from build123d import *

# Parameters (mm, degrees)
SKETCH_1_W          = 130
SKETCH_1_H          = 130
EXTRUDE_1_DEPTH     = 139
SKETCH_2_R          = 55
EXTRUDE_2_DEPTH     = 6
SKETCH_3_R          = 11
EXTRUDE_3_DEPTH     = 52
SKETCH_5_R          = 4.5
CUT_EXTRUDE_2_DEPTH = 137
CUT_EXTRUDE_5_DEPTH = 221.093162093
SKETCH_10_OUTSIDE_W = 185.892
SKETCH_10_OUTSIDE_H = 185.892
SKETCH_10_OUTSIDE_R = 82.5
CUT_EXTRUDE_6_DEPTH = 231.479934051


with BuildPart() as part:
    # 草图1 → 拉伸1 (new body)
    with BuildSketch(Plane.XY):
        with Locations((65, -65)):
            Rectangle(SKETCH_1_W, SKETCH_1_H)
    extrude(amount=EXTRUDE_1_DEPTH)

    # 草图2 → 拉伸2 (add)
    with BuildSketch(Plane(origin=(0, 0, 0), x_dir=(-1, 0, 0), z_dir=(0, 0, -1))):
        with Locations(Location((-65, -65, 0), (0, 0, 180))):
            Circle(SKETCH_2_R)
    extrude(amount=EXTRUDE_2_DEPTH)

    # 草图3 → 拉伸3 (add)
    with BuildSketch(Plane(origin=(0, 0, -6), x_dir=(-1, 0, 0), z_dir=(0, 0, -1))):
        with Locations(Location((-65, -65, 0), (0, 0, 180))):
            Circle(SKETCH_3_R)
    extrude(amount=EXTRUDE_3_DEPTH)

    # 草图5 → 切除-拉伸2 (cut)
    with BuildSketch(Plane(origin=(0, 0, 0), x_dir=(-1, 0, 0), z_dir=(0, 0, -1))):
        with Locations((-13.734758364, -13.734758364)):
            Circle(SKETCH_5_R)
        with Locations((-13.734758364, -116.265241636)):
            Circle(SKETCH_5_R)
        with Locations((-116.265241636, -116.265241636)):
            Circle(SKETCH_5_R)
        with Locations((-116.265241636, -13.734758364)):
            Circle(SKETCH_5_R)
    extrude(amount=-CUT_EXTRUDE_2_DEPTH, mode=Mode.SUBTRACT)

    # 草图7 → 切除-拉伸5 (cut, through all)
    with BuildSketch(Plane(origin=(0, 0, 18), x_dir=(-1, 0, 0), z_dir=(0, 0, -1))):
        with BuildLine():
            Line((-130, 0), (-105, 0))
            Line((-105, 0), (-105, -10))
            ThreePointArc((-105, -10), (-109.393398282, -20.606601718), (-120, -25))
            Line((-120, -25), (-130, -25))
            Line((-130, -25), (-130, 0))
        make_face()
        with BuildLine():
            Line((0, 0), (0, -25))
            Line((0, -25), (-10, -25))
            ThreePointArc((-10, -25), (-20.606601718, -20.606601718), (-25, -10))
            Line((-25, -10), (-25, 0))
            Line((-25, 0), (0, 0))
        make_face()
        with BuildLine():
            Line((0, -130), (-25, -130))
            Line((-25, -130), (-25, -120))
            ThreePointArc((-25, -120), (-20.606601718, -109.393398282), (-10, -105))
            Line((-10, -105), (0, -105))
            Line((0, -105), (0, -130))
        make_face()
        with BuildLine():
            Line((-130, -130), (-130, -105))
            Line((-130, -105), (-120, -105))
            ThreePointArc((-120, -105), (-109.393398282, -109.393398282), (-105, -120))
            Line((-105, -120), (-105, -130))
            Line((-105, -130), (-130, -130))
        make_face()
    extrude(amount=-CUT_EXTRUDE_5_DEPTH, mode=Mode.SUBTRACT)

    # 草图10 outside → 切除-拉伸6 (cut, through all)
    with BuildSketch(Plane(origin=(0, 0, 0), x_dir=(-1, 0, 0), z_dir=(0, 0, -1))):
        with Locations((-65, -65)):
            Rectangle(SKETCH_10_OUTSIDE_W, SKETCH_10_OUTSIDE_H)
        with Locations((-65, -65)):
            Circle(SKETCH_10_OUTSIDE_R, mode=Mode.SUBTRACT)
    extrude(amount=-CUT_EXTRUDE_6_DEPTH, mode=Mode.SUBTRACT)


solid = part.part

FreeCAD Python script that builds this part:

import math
import FreeCAD as App
import Part
import Sketcher
from FreeCAD import Vector

doc = App.newDocument("Part")
body = doc.addObject("PartDesign::Body", "Body")

sketch1 = doc.addObject("Sketcher::SketchObject", "Sketch")
body.addObject(sketch1)
sketch1.AttachmentSupport = (doc.XY_Plane, [""])
sketch1.MapMode = "FlatFace"
sketch1.addGeometry(Part.LineSegment(Vector(0, 0, 0), Vector(0, -130, 0)), False)
sketch1.addGeometry(Part.LineSegment(Vector(0, -130, 0), Vector(130, -130, 0)), False)
sketch1.addGeometry(Part.LineSegment(Vector(130, -130, 0), Vector(130, 0, 0)), False)
sketch1.addGeometry(Part.LineSegment(Vector(130, 0, 0), Vector(0, 0, 0)), False)
sketch1.addConstraint(Sketcher.Constraint("Coincident", 0, 2, 1, 1))
sketch1.addConstraint(Sketcher.Constraint("Coincident", 1, 2, 2, 1))
sketch1.addConstraint(Sketcher.Constraint("Coincident", 2, 2, 3, 1))
sketch1.addConstraint(Sketcher.Constraint("Coincident", 3, 2, 0, 1))
sketch1.addConstraint(Sketcher.Constraint("Vertical", 0))
sketch1.addConstraint(Sketcher.Constraint("Horizontal", 1))
sketch1.addConstraint(Sketcher.Constraint("Vertical", 2))
sketch1.addConstraint(Sketcher.Constraint("Horizontal", 3))
sketch1.addConstraint(Sketcher.Constraint("Coincident", 3, 2, -1, 1))
sketch1.addConstraint(Sketcher.Constraint("Equal", 3, 0))
sketch1.addConstraint(Sketcher.Constraint("DistanceX", 1, 1, 1, 2, 130.0))
pad1 = doc.addObject("PartDesign::Pad", "Pad")
body.addObject(pad1)
pad1.Profile = sketch1
pad1.Length = 139

sketch2 = doc.addObject("Sketcher::SketchObject", "Sketch001")
body.addObject(sketch2)
sketch2.AttachmentSupport = (doc.XY_Plane, [""])
sketch2.MapMode = "FlatFace"
sketch2.addGeometry(Part.Circle(Vector(65, -65, 0), Vector(0, 0, 1), 55), False)
sketch2.addConstraint(Sketcher.Constraint("Diameter", 0, 110.0))
sketch2.addConstraint(Sketcher.Constraint("DistanceX", -1, 1, 0, 3, 65.0))
sketch2.addConstraint(Sketcher.Constraint("DistanceY", 0, 3, -1, 1, 65.0))
pad2 = doc.addObject("PartDesign::Pad", "Pad001")
body.addObject(pad2)
pad2.Profile = sketch2
pad2.Length = 6
pad2.Reversed = True

sketch3 = doc.addObject("Sketcher::SketchObject", "Sketch002")
body.addObject(sketch3)
sketch3.AttachmentSupport = (doc.XY_Plane, [""])
sketch3.MapMode = "FlatFace"
sketch3.AttachmentOffset = App.Placement(Vector(0, 0, -6), App.Rotation())
sketch3.addGeometry(Part.Circle(Vector(65, -65, 0), Vector(0, 0, 1), 11), False)
sketch3.addConstraint(Sketcher.Constraint("Diameter", 0, 22.0))
sketch3.addConstraint(Sketcher.Constraint("DistanceX", -1, 1, 0, 3, 65.0))
sketch3.addConstraint(Sketcher.Constraint("DistanceY", 0, 3, -1, 1, 65.0))
pad3 = doc.addObject("PartDesign::Pad", "Pad002")
body.addObject(pad3)
pad3.Profile = sketch3
pad3.Length = 52
pad3.Reversed = True

sketch4 = doc.addObject("Sketcher::SketchObject", "Sketch003")
body.addObject(sketch4)
sketch4.AttachmentSupport = (doc.XY_Plane, [""])
sketch4.MapMode = "FlatFace"
sketch4.addGeometry(Part.Circle(Vector(13.7, -13.7, 0), Vector(0, 0, 1), 4.5), False)
sketch4.addGeometry(Part.Circle(Vector(13.7, -116.3, 0), Vector(0, 0, 1), 4.5), False)
sketch4.addGeometry(Part.Circle(Vector(116.3, -116.3, 0), Vector(0, 0, 1), 4.5), False)
sketch4.addGeometry(Part.Circle(Vector(116.3, -13.7, 0), Vector(0, 0, 1), 4.5), False)
sketch4.addConstraint(Sketcher.Constraint("Equal", 0, 1))
sketch4.addConstraint(Sketcher.Constraint("Equal", 1, 2))
sketch4.addConstraint(Sketcher.Constraint("Equal", 2, 3))
sketch4.addConstraint(Sketcher.Constraint("Horizontal", 1, 3, 2, 3))
sketch4.addConstraint(Sketcher.Constraint("Horizontal", 0, 3, 3, 3))
sketch4.addConstraint(Sketcher.Constraint("Vertical", 0, 3, 1, 3))
sketch4.addConstraint(Sketcher.Constraint("Vertical", 2, 3, 3, 3))
sketch4.addConstraint(Sketcher.Constraint("Diameter", 0, 9.0))
sketch4.addConstraint(Sketcher.Constraint("DistanceX", -1, 1, 0, 3, 13.734758))
sketch4.addConstraint(Sketcher.Constraint("DistanceY", 0, 3, -1, 1, 13.734758))
sketch4.addConstraint(Sketcher.Constraint("DistanceY", 1, 3, -1, 1, 116.265242))
sketch4.addConstraint(Sketcher.Constraint("DistanceX", -1, 1, 2, 3, 116.265242))
pocket1 = doc.addObject("PartDesign::Pocket", "Pocket")
body.addObject(pocket1)
pocket1.Profile = sketch4
pocket1.Length = 137
pocket1.Reversed = True

sketch5 = doc.addObject("Sketcher::SketchObject", "Sketch004")
body.addObject(sketch5)
sketch5.AttachmentSupport = (doc.XY_Plane, [""])
sketch5.MapMode = "FlatFace"
sketch5.AttachmentOffset = App.Placement(Vector(0, 0, 18), App.Rotation())
sketch5.addGeometry(Part.LineSegment(Vector(105, 0, 0), Vector(130, 0, 0)), False)
sketch5.addGeometry(Part.LineSegment(Vector(130, 0, 0), Vector(130, -25, 0)), False)
sketch5.addGeometry(Part.LineSegment(Vector(130, -25, 0), Vector(120, -25, 0)), False)
sketch5.addGeometry(Part.ArcOfCircle(Part.Circle(Vector(120, -10, 0), Vector(0, 0, 1), 15), math.radians(180), math.radians(270)), False)
sketch5.addGeometry(Part.LineSegment(Vector(105, -10, 0), Vector(105, 0, 0)), False)
sketch5.addGeometry(Part.LineSegment(Vector(0, -25, 0), Vector(0, 0, 0)), False)
sketch5.addGeometry(Part.LineSegment(Vector(0, 0, 0), Vector(25, 0, 0)), False)
sketch5.addGeometry(Part.LineSegment(Vector(25, 0, 0), Vector(25, -10, 0)), False)
sketch5.addGeometry(Part.ArcOfCircle(Part.Circle(Vector(10, -10, 0), Vector(0, 0, 1), 15), math.radians(-90), math.radians(0)), False)
sketch5.addGeometry(Part.LineSegment(Vector(10, -25, 0), Vector(0, -25, 0)), False)
sketch5.addGeometry(Part.LineSegment(Vector(25, -130, 0), Vector(0, -130, 0)), False)
sketch5.addGeometry(Part.LineSegment(Vector(0, -130, 0), Vector(0, -105, 0)), False)
sketch5.addGeometry(Part.LineSegment(Vector(0, -105, 0), Vector(10, -105, 0)), False)
sketch5.addGeometry(Part.ArcOfCircle(Part.Circle(Vector(10, -120, 0), Vector(0, 0, 1), 15), math.radians(0), math.radians(90)), False)
sketch5.addGeometry(Part.LineSegment(Vector(25, -120, 0), Vector(25, -130, 0)), False)
sketch5.addGeometry(Part.LineSegment(Vector(130, -105, 0), Vector(130, -130, 0)), False)
sketch5.addGeometry(Part.LineSegment(Vector(130, -130, 0), Vector(105, -130, 0)), False)
sketch5.addGeometry(Part.LineSegment(Vector(105, -130, 0), Vector(105, -120, 0)), False)
sketch5.addGeometry(Part.ArcOfCircle(Part.Circle(Vector(120, -120, 0), Vector(0, 0, 1), 15), math.radians(90), math.radians(180)), False)
sketch5.addGeometry(Part.LineSegment(Vector(120, -105, 0), Vector(130, -105, 0)), False)
sketch5.addConstraint(Sketcher.Constraint("Coincident", 0, 2, 1, 1))
sketch5.addConstraint(Sketcher.Constraint("Coincident", 1, 2, 2, 1))
sketch5.addConstraint(Sketcher.Constraint("Tangent", 2, 2, 3, 2))
sketch5.addConstraint(Sketcher.Constraint("Tangent", 3, 1, 4, 1))
sketch5.addConstraint(Sketcher.Constraint("Coincident", 4, 2, 0, 1))
sketch5.addConstraint(Sketcher.Constraint("Coincident", 5, 2, 6, 1))
sketch5.addConstraint(Sketcher.Constraint("Coincident", 6, 2, 7, 1))
sketch5.addConstraint(Sketcher.Constraint("Tangent", 7, 2, 8, 2))
sketch5.addConstraint(Sketcher.Constraint("Tangent", 8, 1, 9, 1))
sketch5.addConstraint(Sketcher.Constraint("Coincident", 9, 2, 5, 1))
sketch5.addConstraint(Sketcher.Constraint("Coincident", 10, 2, 11, 1))
sketch5.addConstraint(Sketcher.Constraint("Coincident", 11, 2, 12, 1))
sketch5.addConstraint(Sketcher.Constraint("Tangent", 12, 2, 13, 2))
sketch5.addConstraint(Sketcher.Constraint("Tangent", 13, 1, 14, 1))
sketch5.addConstraint(Sketcher.Constraint("Coincident", 14, 2, 10, 1))
sketch5.addConstraint(Sketcher.Constraint("Coincident", 15, 2, 16, 1))
sketch5.addConstraint(Sketcher.Constraint("Coincident", 16, 2, 17, 1))
sketch5.addConstraint(Sketcher.Constraint("Tangent", 17, 2, 18, 2))
sketch5.addConstraint(Sketcher.Constraint("Tangent", 18, 1, 19, 1))
sketch5.addConstraint(Sketcher.Constraint("Coincident", 19, 2, 15, 1))
sketch5.addConstraint(Sketcher.Constraint("Horizontal", 0))
sketch5.addConstraint(Sketcher.Constraint("Vertical", 1))
sketch5.addConstraint(Sketcher.Constraint("Horizontal", 2))
sketch5.addConstraint(Sketcher.Constraint("Vertical", 4))
sketch5.addConstraint(Sketcher.Constraint("Vertical", 5))
sketch5.addConstraint(Sketcher.Constraint("Horizontal", 6))
sketch5.addConstraint(Sketcher.Constraint("Vertical", 7))
sketch5.addConstraint(Sketcher.Constraint("Horizontal", 9))
sketch5.addConstraint(Sketcher.Constraint("Horizontal", 10))
sketch5.addConstraint(Sketcher.Constraint("Vertical", 11))
sketch5.addConstraint(Sketcher.Constraint("Horizontal", 12))
sketch5.addConstraint(Sketcher.Constraint("Vertical", 14))
sketch5.addConstraint(Sketcher.Constraint("Vertical", 15))
sketch5.addConstraint(Sketcher.Constraint("Horizontal", 16))
sketch5.addConstraint(Sketcher.Constraint("Vertical", 17))
sketch5.addConstraint(Sketcher.Constraint("Horizontal", 19))
sketch5.addConstraint(Sketcher.Constraint("Coincident", 5, 2, -1, 1))
sketch5.addConstraint(Sketcher.Constraint("Equal", 3, 8))
sketch5.addConstraint(Sketcher.Constraint("Equal", 8, 13))
sketch5.addConstraint(Sketcher.Constraint("Equal", 13, 18))
sketch5.addConstraint(Sketcher.Constraint("PointOnObject", 0, 2, -1))
sketch5.addConstraint(Sketcher.Constraint("PointOnObject", 10, 2, -2))
sketch5.addConstraint(Sketcher.Constraint("Horizontal", 3, 3, 8, 3))
sketch5.addConstraint(Sketcher.Constraint("Horizontal", 13, 3, 18, 3))
sketch5.addConstraint(Sketcher.Constraint("Horizontal", 14, 2, 15, 2))
sketch5.addConstraint(Sketcher.Constraint("Vertical", 8, 3, 13, 3))
sketch5.addConstraint(Sketcher.Constraint("Vertical", 3, 3, 18, 3))
sketch5.addConstraint(Sketcher.Constraint("Vertical", 1, 2, 15, 2))
sketch5.addConstraint(Sketcher.Constraint("Equal", 0, 6))
sketch5.addConstraint(Sketcher.Constraint("Equal", 16, 1))
sketch5.addConstraint(Sketcher.Constraint("Equal", 5, 11))
sketch5.addConstraint(Sketcher.Constraint("Radius", 3, 15.0))
sketch5.addConstraint(Sketcher.Constraint("DistanceX", 0, 1, 0, 2, 25.0))
sketch5.addConstraint(Sketcher.Constraint("DistanceX", -1, 1, 3, 3, 120.0))
sketch5.addConstraint(Sketcher.Constraint("DistanceY", 13, 3, -1, 1, 120.0))
pocket2 = doc.addObject("PartDesign::Pocket", "Pocket001")
body.addObject(pocket2)
pocket2.Profile = sketch5
pocket2.Type = "ThroughAll"
pocket2.Reversed = True

sketch6 = doc.addObject("Sketcher::SketchObject", "Sketch005")
body.addObject(sketch6)
sketch6.AttachmentSupport = (doc.XY_Plane, [""])
sketch6.MapMode = "FlatFace"
sketch6.addGeometry(Part.LineSegment(Vector(158, 28, 0), Vector(158, -158, 0)), False)
sketch6.addGeometry(Part.LineSegment(Vector(158, -158, 0), Vector(-28, -158, 0)), False)
sketch6.addGeometry(Part.LineSegment(Vector(-28, -158, 0), Vector(-28, 28, 0)), False)
sketch6.addGeometry(Part.LineSegment(Vector(-28, 28, 0), Vector(158, 28, 0)), False)
sketch6.addGeometry(Part.Circle(Vector(65, -65, 0), Vector(0, 0, 1), 82), False)
sketch6.addConstraint(Sketcher.Constraint("Coincident", 0, 2, 1, 1))
sketch6.addConstraint(Sketcher.Constraint("Coincident", 1, 2, 2, 1))
sketch6.addConstraint(Sketcher.Constraint("Coincident", 2, 2, 3, 1))
sketch6.addConstraint(Sketcher.Constraint("Coincident", 3, 2, 0, 1))
sketch6.addConstraint(Sketcher.Constraint("Vertical", 0))
sketch6.addConstraint(Sketcher.Constraint("Horizontal", 1))
sketch6.addConstraint(Sketcher.Constraint("Vertical", 2))
sketch6.addConstraint(Sketcher.Constraint("Horizontal", 3))
sketch6.addConstraint(Sketcher.Constraint("Equal", 3, 0))
sketch6.addConstraint(Sketcher.Constraint("Diameter", 4, 165.0))
sketch6.addConstraint(Sketcher.Constraint("DistanceX", -1, 1, 4, 3, 65.0))
sketch6.addConstraint(Sketcher.Constraint("DistanceY", 4, 3, -1, 1, 65.0))
sketch6.addConstraint(Sketcher.Constraint("DistanceX", 1, 2, 1, 1, 185.892))
sketch6.addConstraint(Sketcher.Constraint("DistanceX", -1, 1, 0, 2, 157.946))
sketch6.addConstraint(Sketcher.Constraint("DistanceY", 0, 2, -1, 1, 157.946))
pocket3 = doc.addObject("PartDesign::Pocket", "Pocket002")
body.addObject(pocket3)
pocket3.Profile = sketch6
pocket3.Type = "ThroughAll"
pocket3.Reversed = True

doc.recompute()
